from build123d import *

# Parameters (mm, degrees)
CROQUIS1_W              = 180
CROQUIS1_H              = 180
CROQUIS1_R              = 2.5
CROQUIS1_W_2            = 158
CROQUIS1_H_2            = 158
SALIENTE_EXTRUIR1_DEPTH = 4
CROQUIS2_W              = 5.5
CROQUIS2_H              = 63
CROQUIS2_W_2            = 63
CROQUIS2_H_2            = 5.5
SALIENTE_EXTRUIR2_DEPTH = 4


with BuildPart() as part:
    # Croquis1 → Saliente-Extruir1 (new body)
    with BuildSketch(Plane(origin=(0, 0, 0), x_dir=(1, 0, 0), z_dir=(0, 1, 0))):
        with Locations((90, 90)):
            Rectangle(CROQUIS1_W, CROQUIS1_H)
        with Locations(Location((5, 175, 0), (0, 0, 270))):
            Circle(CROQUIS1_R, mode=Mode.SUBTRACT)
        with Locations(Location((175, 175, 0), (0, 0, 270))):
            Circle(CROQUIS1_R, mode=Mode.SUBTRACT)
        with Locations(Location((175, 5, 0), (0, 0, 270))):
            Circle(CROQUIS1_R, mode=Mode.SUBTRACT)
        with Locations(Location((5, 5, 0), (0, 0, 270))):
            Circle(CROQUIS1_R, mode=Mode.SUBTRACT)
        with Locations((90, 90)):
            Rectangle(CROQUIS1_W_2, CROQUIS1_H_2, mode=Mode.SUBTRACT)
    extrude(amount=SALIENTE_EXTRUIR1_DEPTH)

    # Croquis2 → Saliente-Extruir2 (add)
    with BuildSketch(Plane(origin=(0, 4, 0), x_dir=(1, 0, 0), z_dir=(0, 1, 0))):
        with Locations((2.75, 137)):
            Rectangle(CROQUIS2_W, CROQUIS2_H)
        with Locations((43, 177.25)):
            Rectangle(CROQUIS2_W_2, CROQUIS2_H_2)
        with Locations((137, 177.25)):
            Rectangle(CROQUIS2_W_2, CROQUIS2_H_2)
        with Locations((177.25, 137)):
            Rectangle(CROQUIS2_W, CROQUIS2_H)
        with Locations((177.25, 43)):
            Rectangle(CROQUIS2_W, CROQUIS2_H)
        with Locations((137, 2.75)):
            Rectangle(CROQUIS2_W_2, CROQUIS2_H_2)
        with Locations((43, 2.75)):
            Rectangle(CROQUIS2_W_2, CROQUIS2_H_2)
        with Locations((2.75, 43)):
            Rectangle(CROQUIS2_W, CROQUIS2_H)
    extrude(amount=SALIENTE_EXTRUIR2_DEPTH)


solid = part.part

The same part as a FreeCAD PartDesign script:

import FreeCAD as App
import Part
import Sketcher
Q = App.Units.Quantity

doc = App.newDocument("Part")
params = doc.addObject("Spreadsheet::Sheet", "Params")
for row, (alias, value) in enumerate([
    ("sketch1_diameter", "5 mm"),
    ("sketch1_width", "180 mm"),
    ("sketch1_width2", "158 mm"),
    ("pad1_length", "4 mm"),
    ("sketch2_width", "63 mm"),
    ("sketch2_width2", "5.5 mm"),
    ("pad2_length", "4 mm"),
], start=1):
    params.set(f"A{row}", alias)
    params.set(f"B{row}", "=" + value)
    params.setAlias(f"B{row}", alias)

body = doc.addObject("PartDesign::Body", "Body")

sketch1 = doc.addObject("Sketcher::SketchObject", "Sketch")
body.addObject(sketch1)
sketch1.AttachmentSupport = (doc.XZ_Plane, [""])
sketch1.MapMode = "FlatFace"
sketch1.addGeometry(Part.LineSegment(App.Vector(0, -180, 0), App.Vector(0, 0, 0)), False)
sketch1.addGeometry(Part.LineSegment(App.Vector(0, 0, 0), App.Vector(180, 0, 0)), False)
sketch1.addGeometry(Part.LineSegment(App.Vector(180, 0, 0), App.Vector(180, -180, 0)), False)
sketch1.addGeometry(Part.LineSegment(App.Vector(180, -180, 0), App.Vector(0, -180, 0)), False)
sketch1.addGeometry(Part.Circle(App.Vector(5, -5, 0), App.Vector(0, 0, 1), 2.5), False)
sketch1.addGeometry(Part.Circle(App.Vector(175, -5, 0), App.Vector(0, 0, 1), 2.5), False)
sketch1.addGeometry(Part.Circle(App.Vector(5, -175, 0), App.Vector(0, 0, 1), 2.5), False)
sketch1.addGeometry(Part.LineSegment(App.Vector(169, -11, 0), App.Vector(11, -11, 0)), False)
sketch1.addGeometry(Part.LineSegment(App.Vector(11, -11, 0), App.Vector(11, -169, 0)), False)
sketch1.addGeometry(Part.LineSegment(App.Vector(11, -169, 0), App.Vector(169, -169, 0)), False)
sketch1.addGeometry(Part.LineSegment(App.Vector(169, -169, 0), App.Vector(169, -11, 0)), False)
sketch1.addGeometry(Part.Circle(App.Vector(175, -175, 0), App.Vector(0, 0, 1), 2.5), False)
sketch1.addConstraint(Sketcher.Constraint("Coincident", 0, 2, 1, 1))
sketch1.addConstraint(Sketcher.Constraint("Coincident", 1, 2, 2, 1))
sketch1.addConstraint(Sketcher.Constraint("Coincident", 2, 2, 3, 1))
sketch1.addConstraint(Sketcher.Constraint("Coincident", 3, 2, 0, 1))
sketch1.addConstraint(Sketcher.Constraint("Coincident", 7, 2, 8, 1))
sketch1.addConstraint(Sketcher.Constraint("Coincident", 8, 2, 9, 1))
sketch1.addConstraint(Sketcher.Constraint("Coincident", 9, 2, 10, 1))
sketch1.addConstraint(Sketcher.Constraint("Coincident", 10, 2, 7, 1))
sketch1.addConstraint(Sketcher.Constraint("Vertical", 0))
sketch1.addConstraint(Sketcher.Constraint("Horizontal", 1))
sketch1.addConstraint(Sketcher.Constraint("Vertical", 2))
sketch1.addConstraint(Sketcher.Constraint("Horizontal", 3))
sketch1.addConstraint(Sketcher.Constraint("Horizontal", 7))
sketch1.addConstraint(Sketcher.Constraint("Vertical", 8))
sketch1.addConstraint(Sketcher.Constraint("Horizontal", 9))
sketch1.addConstraint(Sketcher.Constraint("Vertical", 10))
sketch1.addConstraint(Sketcher.Constraint("Coincident", 0, 2, -1, 1))
sketch1.addConstraint(Sketcher.Constraint("Equal", 4, 5))
sketch1.addConstraint(Sketcher.Constraint("Equal", 5, 6))
sketch1.addConstraint(Sketcher.Constraint("Equal", 6, 11))
sketch1.addConstraint(Sketcher.Constraint("Horizontal", 4, 3, 5, 3))
sketch1.addConstraint(Sketcher.Constraint("Horizontal", 6, 3, 11, 3))
sketch1.addConstraint(Sketcher.Constraint("Vertical", 4, 3, 6, 3))
sketch1.addConstraint(Sketcher.Constraint("Vertical", 5, 3, 11, 3))
sketch1.addConstraint(Sketcher.Constraint("Equal", 3, 0))
sketch1.addConstraint(Sketcher.Constraint("Equal", 9, 8))
sketch1.addConstraint(Sketcher.Constraint("Diameter", 4, Q("5 mm")))
sketch1.addConstraint(Sketcher.Constraint("DistanceX", 1, 1, 1, 2, Q("180 mm")))
sketch1.addConstraint(Sketcher.Constraint("DistanceX", 7, 2, 7, 1, Q("158 mm")))
sketch1.addConstraint(Sketcher.Constraint("DistanceX", -1, 1, 4, 3, Q("5 mm")))
sketch1.addConstraint(Sketcher.Constraint("DistanceY", 4, 3, -1, 1, Q("5 mm")))
sketch1.addConstraint(Sketcher.Constraint("DistanceX", -1, 1, 5, 3, Q("175 mm")))
sketch1.addConstraint(Sketcher.Constraint("DistanceY", 6, 3, -1, 1, Q("175 mm")))
sketch1.addConstraint(Sketcher.Constraint("DistanceX", -1, 1, 7, 2, Q("11 mm")))
sketch1.addConstraint(Sketcher.Constraint("DistanceY", 7, 2, -1, 1, Q("11 mm")))
sketch1.setExpression("Constraints[26]", "Params.sketch1_diameter")
sketch1.setExpression("Constraints[27]", "Params.sketch1_width")
sketch1.setExpression("Constraints[28]", "Params.sketch1_width2")
pad1 = doc.addObject("PartDesign::Pad", "Pad")
body.addObject(pad1)
pad1.Profile = sketch1
pad1.setExpression("Length", "Params.pad1_length")
pad1.Reversed = True

sketch2 = doc.addObject("Sketcher::SketchObject", "Sketch001")
body.addObject(sketch2)
sketch2.AttachmentSupport = (doc.XZ_Plane, [""])
sketch2.MapMode = "FlatFace"
sketch2.AttachmentOffset = App.Placement(App.Vector(0, 0, -4), App.Rotation())
sketch2.addGeometry(Part.LineSegment(App.Vector(0, -168, 0), App.Vector(0, -106, 0)), False)
sketch2.addGeometry(Part.LineSegment(App.Vector(0, -106, 0), App.Vector(6, -106, 0)), False)
sketch2.addGeometry(Part.LineSegment(App.Vector(6, -106, 0), App.Vector(6, -168, 0)), False)
sketch2.addGeometry(Part.LineSegment(App.Vector(6, -168, 0), App.Vector(0, -168, 0)), False)
sketch2.addGeometry(Part.LineSegment(App.Vector(12, -180, 0), App.Vector(12, -174, 0)), False)
sketch2.addGeometry(Part.LineSegment(App.Vector(12, -174, 0), App.Vector(74, -174, 0)), False)
sketch2.addGeometry(Part.LineSegment(App.Vector(74, -174, 0), App.Vector(74, -180, 0)), False)
sketch2.addGeometry(Part.LineSegment(App.Vector(74, -180, 0), App.Vector(12, -180, 0)), False)
sketch2.addGeometry(Part.LineSegment(App.Vector(106, -180, 0), App.Vector(106, -174, 0)), False)
sketch2.addGeometry(Part.LineSegment(App.Vector(106, -174, 0), App.Vector(168, -174, 0)), False)
sketch2.addGeometry(Part.LineSegment(App.Vector(168, -174, 0), App.Vector(168, -180, 0)), False)
sketch2.addGeometry(Part.LineSegment(App.Vector(168, -180, 0), App.Vector(106, -180, 0)), False)
sketch2.addGeometry(Part.LineSegment(App.Vector(174, -168, 0), App.Vector(174, -106, 0)), False)
sketch2.addGeometry(Part.LineSegment(App.Vector(174, -106, 0), App.Vector(180, -106, 0)), False)
sketch2.addGeometry(Part.LineSegment(App.Vector(180, -106, 0), App.Vector(180, -168, 0)), False)
sketch2.addGeometry(Part.LineSegment(App.Vector(180, -168, 0), App.Vector(174, -168, 0)), False)
sketch2.addGeometry(Part.LineSegment(App.Vector(174, -74, 0), App.Vector(174, -12, 0)), False)
sketch2.addGeometry(Part.LineSegment(App.Vector(174, -12, 0), App.Vector(180, -12, 0)), False)
sketch2.addGeometry(Part.LineSegment(App.Vector(180, -12, 0), App.Vector(180, -74, 0)), False)
sketch2.addGeometry(Part.LineSegment(App.Vector(180, -74, 0), App.Vector(174, -74, 0)), False)
sketch2.addGeometry(Part.LineSegment(App.Vector(106, -6, 0), App.Vector(106, 0, 0)), False)
sketch2.addGeometry(Part.LineSegment(App.Vector(106, 0, 0), App.Vector(168, 0, 0)), False)
sketch2.addGeometry(Part.LineSegment(App.Vector(168, 0, 0), App.Vector(168, -6, 0)), False)
sketch2.addGeometry(Part.LineSegment(App.Vector(168, -6, 0), App.Vector(106, -6, 0)), False)
sketch2.addGeometry(Part.LineSegment(App.Vector(12, -6, 0), App.Vector(12, 0, 0)), False)
sketch2.addGeometry(Part.LineSegment(App.Vector(12, 0, 0), App.Vector(74, 0, 0)), False)
sketch2.addGeometry(Part.LineSegment(App.Vector(74, 0, 0), App.Vector(74, -6, 0)), False)
sketch2.addGeometry(Part.LineSegment(App.Vector(74, -6, 0), App.Vector(12, -6, 0)), False)
sketch2.addGeometry(Part.LineSegment(App.Vector(0, -74, 0), App.Vector(0, -12, 0)), False)
sketch2.addGeometry(Part.LineSegment(App.Vector(0, -12, 0), App.Vector(6, -12, 0)), False)
sketch2.addGeometry(Part.LineSegment(App.Vector(6, -12, 0), App.Vector(6, -74, 0)), False)
sketch2.addGeometry(Part.LineSegment(App.Vector(6, -74, 0), App.Vector(0, -74, 0)), False)
sketch2.addConstraint(Sketcher.Constraint("Coincident", 0, 2, 1, 1))
sketch2.addConstraint(Sketcher.Constraint("Coincident", 1, 2, 2, 1))
sketch2.addConstraint(Sketcher.Constraint("Coincident", 2, 2, 3, 1))
sketch2.addConstraint(Sketcher.Constraint("Coincident", 3, 2, 0, 1))
sketch2.addConstraint(Sketcher.Constraint("Coincident", 4, 2, 5, 1))
sketch2.addConstraint(Sketcher.Constraint("Coincident", 5, 2, 6, 1))
sketch2.addConstraint(Sketcher.Constraint("Coincident", 6, 2, 7, 1))
sketch2.addConstraint(Sketcher.Constraint("Coincident", 7, 2, 4, 1))
sketch2.addConstraint(Sketcher.Constraint("Coincident", 8, 2, 9, 1))
sketch2.addConstraint(Sketcher.Constraint("Coincident", 9, 2, 10, 1))
sketch2.addConstraint(Sketcher.Constraint("Coincident", 10, 2, 11, 1))
sketch2.addConstraint(Sketcher.Constraint("Coincident", 11, 2, 8, 1))
sketch2.addConstraint(Sketcher.Constraint("Coincident", 12, 2, 13, 1))
sketch2.addConstraint(Sketcher.Constraint("Coincident", 13, 2, 14, 1))
sketch2.addConstraint(Sketcher.Constraint("Coincident", 14, 2, 15, 1))
sketch2.addConstraint(Sketcher.Constraint("Coincident", 15, 2, 12, 1))
sketch2.addConstraint(Sketcher.Constraint("Coincident", 16, 2, 17, 1))
sketch2.addConstraint(Sketcher.Constraint("Coincident", 17, 2, 18, 1))
sketch2.addConstraint(Sketcher.Constraint("Coincident", 18, 2, 19, 1))
sketch2.addConstraint(Sketcher.Constraint("Coincident", 19, 2, 16, 1))
sketch2.addConstraint(Sketcher.Constraint("Coincident", 20, 2, 21, 1))
sketch2.addConstraint(Sketcher.Constraint("Coincident", 21, 2, 22, 1))
sketch2.addConstraint(Sketcher.Constraint("Coincident", 22, 2, 23, 1))
sketch2.addConstraint(Sketcher.Constraint("Coincident", 23, 2, 20, 1))
sketch2.addConstraint(Sketcher.Constraint("Coincident", 24, 2, 25, 1))
sketch2.addConstraint(Sketcher.Constraint("Coincident", 25, 2, 26, 1))
sketch2.addConstraint(Sketcher.Constraint("Coincident", 26, 2, 27, 1))
sketch2.addConstraint(Sketcher.Constraint("Coincident", 27, 2, 24, 1))
sketch2.addConstraint(Sketcher.Constraint("Coincident", 28, 2, 29, 1))
sketch2.addConstraint(Sketcher.Constraint("Coincident", 29, 2, 30, 1))
sketch2.addConstraint(Sketcher.Constraint("Coincident", 30, 2, 31, 1))
sketch2.addConstraint(Sketcher.Constraint("Coincident", 31, 2, 28, 1))
sketch2.addConstraint(Sketcher.Constraint("Vertical", 0))
sketch2.addConstraint(Sketcher.Constraint("Horizontal", 1))
sketch2.addConstraint(Sketcher.Constraint("Vertical", 2))
sketch2.addConstraint(Sketcher.Constraint("Horizontal", 3))
sketch2.addConstraint(Sketcher.Constraint("Vertical", 4))
sketch2.addConstraint(Sketcher.Constraint("Horizontal", 5))
sketch2.addConstraint(Sketcher.Constraint("Vertical", 6))
sketch2.addConstraint(Sketcher.Constraint("Horizontal", 7))
sketch2.addConstraint(Sketcher.Constraint("Vertical", 8))
sketch2.addConstraint(Sketcher.Constraint("Horizontal", 9))
sketch2.addConstraint(Sketcher.Constraint("Vertical", 10))
sketch2.addConstraint(Sketcher.Constraint("Horizontal", 11))
sketch2.addConstraint(Sketcher.Constraint("Vertical", 12))
sketch2.addConstraint(Sketcher.Constraint("Horizontal", 13))
sketch2.addConstraint(Sketcher.Constraint("Vertical", 14))
sketch2.addConstraint(Sketcher.Constraint("Horizontal", 15))
sketch2.addConstraint(Sketcher.Constraint("Vertical", 16))
sketch2.addConstraint(Sketcher.Constraint("Horizontal", 17))
sketch2.addConstraint(Sketcher.Constraint("Vertical", 18))
sketch2.addConstraint(Sketcher.Constraint("Horizontal", 19))
sketch2.addConstraint(Sketcher.Constraint("Vertical", 20))
sketch2.addConstraint(Sketcher.Constraint("Horizontal", 21))
sketch2.addConstraint(Sketcher.Constraint("Vertical", 22))
sketch2.addConstraint(Sketcher.Constraint("Horizontal", 23))
sketch2.addConstraint(Sketcher.Constraint("Vertical", 24))
sketch2.addConstraint(Sketcher.Constraint("Horizontal", 25))
sketch2.addConstraint(Sketcher.Constraint("Vertical", 26))
sketch2.addConstraint(Sketcher.Constraint("Horizontal", 27))
sketch2.addConstraint(Sketcher.Constraint("Vertical", 28))
sketch2.addConstraint(Sketcher.Constraint("Horizontal", 29))
sketch2.addConstraint(Sketcher.Constraint("Vertical", 30))
sketch2.addConstraint(Sketcher.Constraint("Horizontal", 31))
sketch2.addConstraint(Sketcher.Constraint("PointOnObject", 0, 2, -2))
sketch2.addConstraint(Sketcher.Constraint("PointOnObject", 20, 2, -1))
sketch2.addConstraint(Sketcher.Constraint("PointOnObject", 24, 2, -1))
sketch2.addConstraint(Sketcher.Constraint("PointOnObject", 28, 2, -2))
sketch2.addConstraint(Sketcher.Constraint("Horizontal", 5, 2, 8, 2))
sketch2.addConstraint(Sketcher.Constraint("Horizontal", 7, 2, 10, 2))
sketch2.addConstraint(Sketcher.Constraint("Horizontal", 1, 2, 12, 2))
sketch2.addConstraint(Sketcher.Constraint("Horizontal", 3, 2, 14, 2))
sketch2.addConstraint(Sketcher.Constraint("Horizontal", 23, 2, 26, 2))
sketch2.addConstraint(Sketcher.Constraint("Horizontal", 17, 2, 28, 2))
sketch2.addConstraint(Sketcher.Constraint("Horizontal", 19, 2, 30, 2))
sketch2.addConstraint(Sketcher.Constraint("Vertical", 15, 2, 16, 2))
sketch2.addConstraint(Sketcher.Constraint("Vertical", 14, 2, 17, 2))
sketch2.addConstraint(Sketcher.Constraint("Vertical", 11, 2, 20, 2))
sketch2.addConstraint(Sketcher.Constraint("Vertical", 10, 2, 21, 2))
sketch2.addConstraint(Sketcher.Constraint("Vertical", 7, 2, 24, 2))
sketch2.addConstraint(Sketcher.Constraint("Vertical", 6, 2, 25, 2))
sketch2.addConstraint(Sketcher.Constraint("Vertical", 2, 2, 29, 2))
sketch2.addConstraint(Sketcher.Constraint("Equal", 7, 9))
sketch2.addConstraint(Sketcher.Constraint("Equal", 3, 13))
sketch2.addConstraint(Sketcher.Constraint("Equal", 27, 0))
sketch2.addConstraint(Sketcher.Constraint("Equal", 31, 4))
sketch2.addConstraint(Sketcher.Constraint("Equal", 14, 16))
sketch2.addConstraint(Sketcher.Constraint("Equal", 10, 20))
sketch2.addConstraint(Sketcher.Constraint("DistanceX", 5, 1, 5, 2, Q("63 mm")))
sketch2.addConstraint(Sketcher.Constraint("DistanceX", 1, 1, 1, 2, Q("5.5 mm")))
sketch2.addConstraint(Sketcher.Constraint("DistanceY", 6, 2, -1, 1, Q("180 mm")))
sketch2.addConstraint(Sketcher.Constraint("DistanceX", -1, 1, 13, 2, Q("180 mm")))
sketch2.addConstraint(Sketcher.Constraint("DistanceX", 2, 2, 4, 2, Q("6 mm")))
sketch2.addConstraint(Sketcher.Constraint("DistanceY", 4, 2, 2, 2, Q("6 mm")))
sketch2.addConstraint(Sketcher.Constraint("DistanceX", 5, 2, 8, 2, Q("31 mm")))
sketch2.addConstraint(Sketcher.Constraint("DistanceY", 12, 2, 16, 2, Q("94 mm")))
sketch2.setExpression("Constraints[88]", "Params.sketch2_width")
sketch2.setExpression("Constraints[89]", "Params.sketch2_width2")
pad2 = doc.addObject("PartDesign::Pad", "Pad001")
body.addObject(pad2)
pad2.Profile = sketch2
pad2.setExpression("Length", "Params.pad2_length")
pad2.Reversed = True

doc.recompute()
